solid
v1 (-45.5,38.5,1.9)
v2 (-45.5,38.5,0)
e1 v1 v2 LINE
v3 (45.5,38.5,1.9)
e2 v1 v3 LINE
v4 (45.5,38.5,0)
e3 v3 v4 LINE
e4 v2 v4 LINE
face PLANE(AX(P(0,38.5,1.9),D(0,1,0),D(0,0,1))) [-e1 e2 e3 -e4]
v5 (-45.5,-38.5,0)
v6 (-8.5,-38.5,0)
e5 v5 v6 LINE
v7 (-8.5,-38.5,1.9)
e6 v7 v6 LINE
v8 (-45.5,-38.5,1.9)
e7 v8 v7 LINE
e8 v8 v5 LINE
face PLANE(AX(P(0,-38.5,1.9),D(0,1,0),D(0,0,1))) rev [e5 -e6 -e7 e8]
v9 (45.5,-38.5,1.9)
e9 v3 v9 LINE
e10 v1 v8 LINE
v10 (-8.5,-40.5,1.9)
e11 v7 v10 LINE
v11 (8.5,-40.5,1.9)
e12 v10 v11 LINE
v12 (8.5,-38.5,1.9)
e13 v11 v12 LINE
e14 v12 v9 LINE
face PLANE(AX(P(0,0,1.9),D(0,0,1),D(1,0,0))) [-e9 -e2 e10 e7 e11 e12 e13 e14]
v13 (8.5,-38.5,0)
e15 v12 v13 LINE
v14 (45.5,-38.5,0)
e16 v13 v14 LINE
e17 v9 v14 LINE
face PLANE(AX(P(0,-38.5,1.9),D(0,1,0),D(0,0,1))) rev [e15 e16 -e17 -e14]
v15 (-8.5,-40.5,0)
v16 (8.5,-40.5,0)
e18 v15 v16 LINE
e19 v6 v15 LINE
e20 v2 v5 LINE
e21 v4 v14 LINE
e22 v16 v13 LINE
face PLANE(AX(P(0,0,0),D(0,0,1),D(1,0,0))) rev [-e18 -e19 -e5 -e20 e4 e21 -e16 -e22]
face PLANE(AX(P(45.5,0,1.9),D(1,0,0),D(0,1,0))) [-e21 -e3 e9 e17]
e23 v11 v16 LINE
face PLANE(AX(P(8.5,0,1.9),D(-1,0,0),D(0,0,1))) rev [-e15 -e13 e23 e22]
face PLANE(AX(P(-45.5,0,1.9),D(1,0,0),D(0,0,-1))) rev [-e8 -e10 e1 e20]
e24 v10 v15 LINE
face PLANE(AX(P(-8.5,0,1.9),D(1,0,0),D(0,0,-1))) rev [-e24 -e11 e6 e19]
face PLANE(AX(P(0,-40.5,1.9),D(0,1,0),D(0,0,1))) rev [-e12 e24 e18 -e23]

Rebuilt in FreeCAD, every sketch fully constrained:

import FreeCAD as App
import Part
import Sketcher

V = App.Vector
Q = App.Units.Quantity

doc = App.newDocument("Part")
body = doc.addObject("PartDesign::Body", "Body")

sketch1 = body.newObject("Sketcher::SketchObject", "Sketch")
sketch1.AttachmentSupport = (doc.getObject("XY_Plane"), [""])
sketch1.MapMode = "FlatFace"
sketch1.addGeometry([
    Part.LineSegment(V(-45.5, 38.5, 0), V(-45.5, -38.5, 0)),
    Part.LineSegment(V(-45.5, -38.5, 0), V(-8.5, -38.5, 0)),
    Part.LineSegment(V(-8.5, -38.5, 0), V(-8.5, -40.5, 0)),
    Part.LineSegment(V(-8.5, -40.5, 0), V(8.5, -40.5, 0)),
    Part.LineSegment(V(8.5, -40.5, 0), V(8.5, -38.5, 0)),
    Part.LineSegment(V(8.5, -38.5, 0), V(45.5, -38.5, 0)),
    Part.LineSegment(V(45.5, -38.5, 0), V(45.5, 38.5, 0)),
    Part.LineSegment(V(45.5, 38.5, 0), V(-45.5, 38.5, 0)),
], False)
sketch1.addConstraint([
    Sketcher.Constraint("Coincident", 0, 2, 1, 1),
    Sketcher.Constraint("Coincident", 1, 2, 2, 1),
    Sketcher.Constraint("Coincident", 2, 2, 3, 1),
    Sketcher.Constraint("Coincident", 3, 2, 4, 1),
    Sketcher.Constraint("Coincident", 4, 2, 5, 1),
    Sketcher.Constraint("Coincident", 5, 2, 6, 1),
    Sketcher.Constraint("Coincident", 6, 2, 7, 1),
    Sketcher.Constraint("Coincident", 7, 2, 0, 1),
    Sketcher.Constraint("Vertical", 0),
    Sketcher.Constraint("Horizontal", 1),
    Sketcher.Constraint("Vertical", 2),
    Sketcher.Constraint("Horizontal", 3),
    Sketcher.Constraint("Vertical", 4),
    Sketcher.Constraint("Horizontal", 5),
    Sketcher.Constraint("Vertical", 6),
    Sketcher.Constraint("Horizontal", 7),
    Sketcher.Constraint("Symmetric", 0, 2, 6, 2, -1, 1),
    Sketcher.Constraint("Symmetric", 1, 2, 4, 2, -2),
    Sketcher.Constraint("DistanceX", 1, 1, 1, 2, Q("37 mm")),
    Sketcher.Constraint("DistanceX", 3, 1, 3, 2, Q("17 mm")),
    Sketcher.Constraint("DistanceY", 0, 2, 0, 1, Q("77 mm")),
    Sketcher.Constraint("DistanceY", 2, 2, 2, 1, Q("2 mm")),
])
pad1 = body.newObject("PartDesign::Pad", "Pad")
pad1.Profile = sketch1
pad1.Length = 1.9

doc.recompute()
